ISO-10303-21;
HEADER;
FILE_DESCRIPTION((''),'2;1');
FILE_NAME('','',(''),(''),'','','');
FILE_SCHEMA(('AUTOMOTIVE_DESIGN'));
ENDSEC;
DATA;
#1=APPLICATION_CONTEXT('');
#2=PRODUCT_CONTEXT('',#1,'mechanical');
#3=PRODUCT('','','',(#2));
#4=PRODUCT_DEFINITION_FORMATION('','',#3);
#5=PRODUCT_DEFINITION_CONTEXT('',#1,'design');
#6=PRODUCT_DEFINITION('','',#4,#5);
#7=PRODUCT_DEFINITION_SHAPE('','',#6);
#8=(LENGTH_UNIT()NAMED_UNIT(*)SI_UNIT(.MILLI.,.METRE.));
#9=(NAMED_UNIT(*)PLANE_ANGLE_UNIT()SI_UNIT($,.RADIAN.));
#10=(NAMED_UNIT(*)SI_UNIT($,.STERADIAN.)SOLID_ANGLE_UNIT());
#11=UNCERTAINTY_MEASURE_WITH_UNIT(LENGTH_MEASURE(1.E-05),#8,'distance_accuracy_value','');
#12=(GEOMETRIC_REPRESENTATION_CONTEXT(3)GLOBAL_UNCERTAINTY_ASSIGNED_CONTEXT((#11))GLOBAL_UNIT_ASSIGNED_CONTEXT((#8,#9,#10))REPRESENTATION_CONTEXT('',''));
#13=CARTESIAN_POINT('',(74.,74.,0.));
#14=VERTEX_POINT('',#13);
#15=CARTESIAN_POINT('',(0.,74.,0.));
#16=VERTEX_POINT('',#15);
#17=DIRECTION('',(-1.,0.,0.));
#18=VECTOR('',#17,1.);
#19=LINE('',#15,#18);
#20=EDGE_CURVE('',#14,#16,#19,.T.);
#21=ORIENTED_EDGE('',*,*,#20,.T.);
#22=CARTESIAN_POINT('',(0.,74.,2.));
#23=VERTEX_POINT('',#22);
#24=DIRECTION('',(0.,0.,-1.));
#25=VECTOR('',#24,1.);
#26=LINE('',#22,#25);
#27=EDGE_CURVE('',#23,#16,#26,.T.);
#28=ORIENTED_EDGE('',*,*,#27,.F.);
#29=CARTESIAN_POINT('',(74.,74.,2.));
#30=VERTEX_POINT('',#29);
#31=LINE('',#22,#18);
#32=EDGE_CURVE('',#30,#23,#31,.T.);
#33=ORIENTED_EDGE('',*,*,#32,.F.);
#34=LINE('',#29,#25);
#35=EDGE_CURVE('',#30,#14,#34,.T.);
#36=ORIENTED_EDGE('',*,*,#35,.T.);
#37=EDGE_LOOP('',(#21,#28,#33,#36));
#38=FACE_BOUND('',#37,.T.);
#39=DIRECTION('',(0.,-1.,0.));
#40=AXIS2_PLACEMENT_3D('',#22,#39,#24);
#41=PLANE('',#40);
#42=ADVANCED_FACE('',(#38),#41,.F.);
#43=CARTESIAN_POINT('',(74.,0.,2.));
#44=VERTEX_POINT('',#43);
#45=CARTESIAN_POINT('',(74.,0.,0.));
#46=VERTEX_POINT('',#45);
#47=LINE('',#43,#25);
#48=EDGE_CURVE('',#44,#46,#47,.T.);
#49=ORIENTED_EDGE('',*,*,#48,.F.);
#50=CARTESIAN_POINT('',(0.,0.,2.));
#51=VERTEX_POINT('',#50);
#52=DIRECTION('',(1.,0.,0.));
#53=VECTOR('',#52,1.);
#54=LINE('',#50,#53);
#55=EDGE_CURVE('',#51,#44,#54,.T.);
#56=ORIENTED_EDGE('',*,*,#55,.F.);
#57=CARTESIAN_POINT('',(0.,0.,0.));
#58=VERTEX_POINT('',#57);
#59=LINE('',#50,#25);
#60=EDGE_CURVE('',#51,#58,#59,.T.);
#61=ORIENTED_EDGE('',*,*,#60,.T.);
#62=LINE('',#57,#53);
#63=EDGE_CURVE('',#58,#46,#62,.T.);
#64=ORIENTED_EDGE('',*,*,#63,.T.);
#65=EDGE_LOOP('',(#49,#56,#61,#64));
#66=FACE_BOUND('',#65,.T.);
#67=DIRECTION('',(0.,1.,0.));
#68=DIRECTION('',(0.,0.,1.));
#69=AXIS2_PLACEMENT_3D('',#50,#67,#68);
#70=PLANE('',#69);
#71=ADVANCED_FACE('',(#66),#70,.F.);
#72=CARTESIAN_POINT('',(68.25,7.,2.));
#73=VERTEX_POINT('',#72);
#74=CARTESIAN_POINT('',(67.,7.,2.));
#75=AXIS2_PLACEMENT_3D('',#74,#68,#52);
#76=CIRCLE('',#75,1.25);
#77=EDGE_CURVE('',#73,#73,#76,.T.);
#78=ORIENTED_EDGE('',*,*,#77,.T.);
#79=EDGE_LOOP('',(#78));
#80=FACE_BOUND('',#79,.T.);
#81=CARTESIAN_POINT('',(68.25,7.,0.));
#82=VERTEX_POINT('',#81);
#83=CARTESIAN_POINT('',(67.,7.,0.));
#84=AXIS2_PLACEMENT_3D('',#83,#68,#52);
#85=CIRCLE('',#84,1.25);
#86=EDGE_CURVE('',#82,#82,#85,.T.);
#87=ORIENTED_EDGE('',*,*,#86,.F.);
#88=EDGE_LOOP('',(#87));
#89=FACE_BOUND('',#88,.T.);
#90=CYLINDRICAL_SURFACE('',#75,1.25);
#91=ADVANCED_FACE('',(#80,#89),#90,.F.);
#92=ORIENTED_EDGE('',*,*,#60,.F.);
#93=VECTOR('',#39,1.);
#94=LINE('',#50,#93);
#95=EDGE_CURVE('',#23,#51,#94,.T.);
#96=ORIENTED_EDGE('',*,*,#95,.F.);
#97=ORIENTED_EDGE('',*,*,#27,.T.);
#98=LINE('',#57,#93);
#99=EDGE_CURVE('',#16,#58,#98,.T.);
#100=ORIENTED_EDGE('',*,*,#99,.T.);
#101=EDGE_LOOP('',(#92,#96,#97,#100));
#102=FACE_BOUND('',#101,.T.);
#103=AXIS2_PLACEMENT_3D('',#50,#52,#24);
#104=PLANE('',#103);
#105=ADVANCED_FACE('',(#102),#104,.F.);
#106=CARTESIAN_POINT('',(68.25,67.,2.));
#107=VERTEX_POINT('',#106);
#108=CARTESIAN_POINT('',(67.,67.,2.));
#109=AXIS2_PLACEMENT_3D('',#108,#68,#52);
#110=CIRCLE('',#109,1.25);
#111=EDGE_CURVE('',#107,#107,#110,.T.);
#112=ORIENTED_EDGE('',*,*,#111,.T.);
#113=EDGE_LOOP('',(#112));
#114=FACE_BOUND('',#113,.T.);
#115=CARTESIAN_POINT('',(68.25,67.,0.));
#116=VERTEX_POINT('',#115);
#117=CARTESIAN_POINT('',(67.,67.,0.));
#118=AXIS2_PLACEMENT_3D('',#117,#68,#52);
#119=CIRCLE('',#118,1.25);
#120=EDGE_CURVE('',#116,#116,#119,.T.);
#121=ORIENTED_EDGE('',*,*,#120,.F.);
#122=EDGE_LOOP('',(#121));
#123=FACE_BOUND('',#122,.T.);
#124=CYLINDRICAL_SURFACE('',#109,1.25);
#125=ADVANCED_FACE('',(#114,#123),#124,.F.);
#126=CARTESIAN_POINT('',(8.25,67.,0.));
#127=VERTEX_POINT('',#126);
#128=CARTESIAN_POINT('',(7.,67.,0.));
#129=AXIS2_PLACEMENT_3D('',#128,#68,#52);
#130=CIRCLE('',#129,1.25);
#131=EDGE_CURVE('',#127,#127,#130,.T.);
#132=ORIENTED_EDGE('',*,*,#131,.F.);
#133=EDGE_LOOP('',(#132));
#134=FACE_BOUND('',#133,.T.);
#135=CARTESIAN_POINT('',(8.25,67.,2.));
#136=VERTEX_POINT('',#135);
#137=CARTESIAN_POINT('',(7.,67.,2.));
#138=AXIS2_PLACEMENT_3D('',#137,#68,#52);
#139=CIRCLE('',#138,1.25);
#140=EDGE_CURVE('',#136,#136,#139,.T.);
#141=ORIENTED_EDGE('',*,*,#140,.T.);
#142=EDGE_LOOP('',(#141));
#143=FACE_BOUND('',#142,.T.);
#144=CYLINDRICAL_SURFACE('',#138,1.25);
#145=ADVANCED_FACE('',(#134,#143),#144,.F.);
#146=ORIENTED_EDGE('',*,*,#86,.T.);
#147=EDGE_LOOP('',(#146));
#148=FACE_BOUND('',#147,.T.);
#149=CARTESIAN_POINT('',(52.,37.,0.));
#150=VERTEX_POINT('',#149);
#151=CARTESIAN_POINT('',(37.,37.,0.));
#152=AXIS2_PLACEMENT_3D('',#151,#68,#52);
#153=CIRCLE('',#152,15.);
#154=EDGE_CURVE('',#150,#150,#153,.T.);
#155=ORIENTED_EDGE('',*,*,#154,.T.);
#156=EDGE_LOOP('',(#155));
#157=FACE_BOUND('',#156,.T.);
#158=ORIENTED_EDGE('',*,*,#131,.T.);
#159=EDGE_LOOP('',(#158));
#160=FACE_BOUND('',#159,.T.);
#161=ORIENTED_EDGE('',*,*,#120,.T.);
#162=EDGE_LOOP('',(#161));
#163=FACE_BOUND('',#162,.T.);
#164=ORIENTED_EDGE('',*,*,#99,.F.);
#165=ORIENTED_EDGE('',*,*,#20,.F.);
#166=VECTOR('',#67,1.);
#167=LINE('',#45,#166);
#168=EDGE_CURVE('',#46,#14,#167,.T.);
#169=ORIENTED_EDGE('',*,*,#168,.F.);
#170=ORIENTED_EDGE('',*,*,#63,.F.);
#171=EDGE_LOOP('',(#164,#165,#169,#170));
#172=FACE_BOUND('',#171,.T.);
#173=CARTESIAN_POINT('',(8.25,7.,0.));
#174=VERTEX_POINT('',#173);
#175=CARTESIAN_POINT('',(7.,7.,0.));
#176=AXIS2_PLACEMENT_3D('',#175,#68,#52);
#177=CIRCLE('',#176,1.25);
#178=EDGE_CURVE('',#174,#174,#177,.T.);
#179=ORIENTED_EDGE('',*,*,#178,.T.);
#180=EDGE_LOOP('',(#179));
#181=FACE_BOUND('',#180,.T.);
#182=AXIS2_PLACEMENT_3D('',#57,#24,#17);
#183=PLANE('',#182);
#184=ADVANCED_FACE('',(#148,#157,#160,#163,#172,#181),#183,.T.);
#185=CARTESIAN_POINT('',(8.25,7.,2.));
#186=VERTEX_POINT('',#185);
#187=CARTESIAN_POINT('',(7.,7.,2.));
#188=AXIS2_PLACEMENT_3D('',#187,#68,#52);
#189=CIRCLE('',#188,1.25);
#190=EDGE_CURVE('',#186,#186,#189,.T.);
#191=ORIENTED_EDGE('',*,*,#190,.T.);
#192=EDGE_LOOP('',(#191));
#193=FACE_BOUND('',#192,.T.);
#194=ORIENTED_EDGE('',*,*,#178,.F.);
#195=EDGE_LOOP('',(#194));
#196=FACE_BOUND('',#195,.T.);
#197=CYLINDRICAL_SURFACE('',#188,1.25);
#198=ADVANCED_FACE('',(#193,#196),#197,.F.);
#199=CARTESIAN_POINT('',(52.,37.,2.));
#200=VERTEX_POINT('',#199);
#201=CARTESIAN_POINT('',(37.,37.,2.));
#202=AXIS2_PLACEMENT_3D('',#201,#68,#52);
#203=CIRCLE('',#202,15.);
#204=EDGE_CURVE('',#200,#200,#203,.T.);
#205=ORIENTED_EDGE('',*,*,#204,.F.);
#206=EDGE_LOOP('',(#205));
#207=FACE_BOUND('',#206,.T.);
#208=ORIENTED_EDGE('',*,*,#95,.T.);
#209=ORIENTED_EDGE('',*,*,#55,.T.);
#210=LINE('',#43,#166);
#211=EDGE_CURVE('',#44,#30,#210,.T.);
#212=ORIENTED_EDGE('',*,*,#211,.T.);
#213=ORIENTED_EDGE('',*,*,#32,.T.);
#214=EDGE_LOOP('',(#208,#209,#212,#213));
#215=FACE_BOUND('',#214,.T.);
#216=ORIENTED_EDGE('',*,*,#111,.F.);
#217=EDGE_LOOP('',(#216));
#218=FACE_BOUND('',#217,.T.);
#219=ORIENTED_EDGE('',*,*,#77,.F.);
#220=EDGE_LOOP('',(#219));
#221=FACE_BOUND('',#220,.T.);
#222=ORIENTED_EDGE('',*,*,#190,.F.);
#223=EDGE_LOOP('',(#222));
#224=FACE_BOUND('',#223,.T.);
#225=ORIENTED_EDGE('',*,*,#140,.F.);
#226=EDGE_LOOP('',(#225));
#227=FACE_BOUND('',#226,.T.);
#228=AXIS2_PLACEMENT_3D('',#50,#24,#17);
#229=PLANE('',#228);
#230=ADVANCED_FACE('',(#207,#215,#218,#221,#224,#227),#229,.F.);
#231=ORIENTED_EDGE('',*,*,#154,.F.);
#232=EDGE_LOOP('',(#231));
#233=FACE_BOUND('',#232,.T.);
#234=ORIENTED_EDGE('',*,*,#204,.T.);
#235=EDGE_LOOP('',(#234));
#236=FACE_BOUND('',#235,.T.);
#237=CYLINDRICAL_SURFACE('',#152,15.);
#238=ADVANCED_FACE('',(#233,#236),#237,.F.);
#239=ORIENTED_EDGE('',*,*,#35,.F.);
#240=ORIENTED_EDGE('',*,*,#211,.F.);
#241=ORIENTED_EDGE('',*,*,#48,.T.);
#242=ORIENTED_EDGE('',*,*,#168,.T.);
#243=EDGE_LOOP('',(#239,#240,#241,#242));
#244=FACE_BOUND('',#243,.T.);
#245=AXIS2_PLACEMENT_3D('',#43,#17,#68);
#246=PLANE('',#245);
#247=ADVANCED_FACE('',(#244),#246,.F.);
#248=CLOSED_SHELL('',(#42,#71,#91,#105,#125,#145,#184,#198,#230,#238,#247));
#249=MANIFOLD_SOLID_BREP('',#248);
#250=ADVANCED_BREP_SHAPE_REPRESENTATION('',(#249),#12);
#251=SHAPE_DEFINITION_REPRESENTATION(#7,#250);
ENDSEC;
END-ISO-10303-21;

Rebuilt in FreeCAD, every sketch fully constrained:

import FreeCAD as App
import Part
import Sketcher
from FreeCAD import Vector

doc = App.newDocument("Part")
params = doc.addObject("Spreadsheet::Sheet", "Params")
for row, (alias, value) in enumerate([
    ("sketch1_width", "74 mm"),
    ("pad1_length", "2 mm"),
    ("sketch2_diameter", "30 mm"),
    ("pocket1_length", "2 mm"),
    ("sketch3_diameter", "2.5 mm"),
    ("hole_diameter", "2.5 mm"),
], start=1):
    params.set(f"A{row}", alias)
    params.set(f"B{row}", "=" + value)
    params.setAlias(f"B{row}", alias)

body = doc.addObject("PartDesign::Body", "Body")

# Sketch on XY plane
sketch1 = body.newObject("Sketcher::SketchObject", "Sketch")
sketch1.AttachmentSupport = (doc.getObject("XY_Plane"), [""])
sketch1.MapMode = "FlatFace"
sketch1.addGeometry([
    Part.LineSegment(Vector(0, 74, 0), Vector(0, 0, 0)),
    Part.LineSegment(Vector(0, 0, 0), Vector(74, 0, 0)),
    Part.LineSegment(Vector(74, 0, 0), Vector(74, 74, 0)),
    Part.LineSegment(Vector(74, 74, 0), Vector(0, 74, 0)),
], False)
sketch1.addConstraint([
    Sketcher.Constraint("Coincident", 0, 2, 1, 1),
    Sketcher.Constraint("Coincident", 1, 2, 2, 1),
    Sketcher.Constraint("Coincident", 2, 2, 3, 1),
    Sketcher.Constraint("Coincident", 3, 2, 0, 1),
    Sketcher.Constraint("Vertical", 0),
    Sketcher.Constraint("Horizontal", 1),
    Sketcher.Constraint("Vertical", 2),
    Sketcher.Constraint("Horizontal", 3),
    Sketcher.Constraint("Coincident", 0, 2, -1, 1),
    Sketcher.Constraint("Equal", 3, 0),
    Sketcher.Constraint("DistanceX", 1, 1, 1, 2, 74.0),
])
sketch1.setExpression("Constraints[10]", "Params.sketch1_width")
pad1 = body.newObject("PartDesign::Pad", "Pad")
pad1.Profile = sketch1
pad1.setExpression("Length", "Params.pad1_length")

# Sketch on XY plane
sketch2 = body.newObject("Sketcher::SketchObject", "Sketch001")
sketch2.AttachmentSupport = (doc.getObject("XY_Plane"), [""])
sketch2.MapMode = "FlatFace"
sketch2.AttachmentOffset = App.Placement(Vector(0, 0, 2), App.Rotation())
sketch2.addGeometry(Part.Circle(Vector(37, 37, 0), Vector(0, 0, 1), 15), False)
sketch2.addConstraint([
    Sketcher.Constraint("Diameter", 0, 30.0),
    Sketcher.Constraint("DistanceX", -1, 1, 0, 3, 37.0),
    Sketcher.Constraint("DistanceY", -1, 1, 0, 3, 37.0),
])
sketch2.setExpression("Constraints[0]", "Params.sketch2_diameter")
pocket1 = body.newObject("PartDesign::Pocket", "Pocket")
pocket1.Profile = sketch2
pocket1.setExpression("Length", "Params.pocket1_length")

# Sketch on XY plane
sketch3 = body.newObject("Sketcher::SketchObject", "Sketch002")
sketch3.AttachmentSupport = (doc.getObject("XY_Plane"), [""])
sketch3.MapMode = "FlatFace"
sketch3.AttachmentOffset = App.Placement(Vector(0, 0, 2), App.Rotation())
sketch3.addGeometry([
    Part.Circle(Vector(7, 67, 0), Vector(0, 0, 1), 1.25),
    Part.Circle(Vector(67, 67, 0), Vector(0, 0, 1), 1.25),
], False)
sketch3.addConstraint([
    Sketcher.Constraint("Equal", 0, 1),
    Sketcher.Constraint("Horizontal", 0, 3, 1, 3),
    Sketcher.Constraint("Diameter", 0, 2.5),
    Sketcher.Constraint("DistanceX", -1, 1, 0, 3, 7.0),
    Sketcher.Constraint("DistanceY", -1, 1, 0, 3, 67.0),
    Sketcher.Constraint("DistanceX", -1, 1, 1, 3, 67.0),
])
sketch3.setExpression("Constraints[2]", "Params.sketch3_diameter")
doc.recompute()
hole = body.newObject("PartDesign::Hole", "Hole")
hole.Profile = sketch3
hole.ThreadType = "None"
hole.setExpression("Diameter", "Params.hole_diameter")
hole.DepthType = "ThroughAll"
doc.recompute()

datumplane = body.newObject("PartDesign::Plane", "DatumPlane")
datumplane.AttachmentSupport = (doc.getObject("XZ_Plane"), [""])
datumplane.MapMode = "FlatFace"
datumplane.AttachmentOffset = App.Placement(Vector(0, 0, -37), App.Rotation())
mirrored = body.newObject("PartDesign::Mirrored", "Mirrored")
mirrored.Originals = [hole]
mirrored.MirrorPlane = (datumplane, [""])
body.Tip = mirrored

doc.recompute()
